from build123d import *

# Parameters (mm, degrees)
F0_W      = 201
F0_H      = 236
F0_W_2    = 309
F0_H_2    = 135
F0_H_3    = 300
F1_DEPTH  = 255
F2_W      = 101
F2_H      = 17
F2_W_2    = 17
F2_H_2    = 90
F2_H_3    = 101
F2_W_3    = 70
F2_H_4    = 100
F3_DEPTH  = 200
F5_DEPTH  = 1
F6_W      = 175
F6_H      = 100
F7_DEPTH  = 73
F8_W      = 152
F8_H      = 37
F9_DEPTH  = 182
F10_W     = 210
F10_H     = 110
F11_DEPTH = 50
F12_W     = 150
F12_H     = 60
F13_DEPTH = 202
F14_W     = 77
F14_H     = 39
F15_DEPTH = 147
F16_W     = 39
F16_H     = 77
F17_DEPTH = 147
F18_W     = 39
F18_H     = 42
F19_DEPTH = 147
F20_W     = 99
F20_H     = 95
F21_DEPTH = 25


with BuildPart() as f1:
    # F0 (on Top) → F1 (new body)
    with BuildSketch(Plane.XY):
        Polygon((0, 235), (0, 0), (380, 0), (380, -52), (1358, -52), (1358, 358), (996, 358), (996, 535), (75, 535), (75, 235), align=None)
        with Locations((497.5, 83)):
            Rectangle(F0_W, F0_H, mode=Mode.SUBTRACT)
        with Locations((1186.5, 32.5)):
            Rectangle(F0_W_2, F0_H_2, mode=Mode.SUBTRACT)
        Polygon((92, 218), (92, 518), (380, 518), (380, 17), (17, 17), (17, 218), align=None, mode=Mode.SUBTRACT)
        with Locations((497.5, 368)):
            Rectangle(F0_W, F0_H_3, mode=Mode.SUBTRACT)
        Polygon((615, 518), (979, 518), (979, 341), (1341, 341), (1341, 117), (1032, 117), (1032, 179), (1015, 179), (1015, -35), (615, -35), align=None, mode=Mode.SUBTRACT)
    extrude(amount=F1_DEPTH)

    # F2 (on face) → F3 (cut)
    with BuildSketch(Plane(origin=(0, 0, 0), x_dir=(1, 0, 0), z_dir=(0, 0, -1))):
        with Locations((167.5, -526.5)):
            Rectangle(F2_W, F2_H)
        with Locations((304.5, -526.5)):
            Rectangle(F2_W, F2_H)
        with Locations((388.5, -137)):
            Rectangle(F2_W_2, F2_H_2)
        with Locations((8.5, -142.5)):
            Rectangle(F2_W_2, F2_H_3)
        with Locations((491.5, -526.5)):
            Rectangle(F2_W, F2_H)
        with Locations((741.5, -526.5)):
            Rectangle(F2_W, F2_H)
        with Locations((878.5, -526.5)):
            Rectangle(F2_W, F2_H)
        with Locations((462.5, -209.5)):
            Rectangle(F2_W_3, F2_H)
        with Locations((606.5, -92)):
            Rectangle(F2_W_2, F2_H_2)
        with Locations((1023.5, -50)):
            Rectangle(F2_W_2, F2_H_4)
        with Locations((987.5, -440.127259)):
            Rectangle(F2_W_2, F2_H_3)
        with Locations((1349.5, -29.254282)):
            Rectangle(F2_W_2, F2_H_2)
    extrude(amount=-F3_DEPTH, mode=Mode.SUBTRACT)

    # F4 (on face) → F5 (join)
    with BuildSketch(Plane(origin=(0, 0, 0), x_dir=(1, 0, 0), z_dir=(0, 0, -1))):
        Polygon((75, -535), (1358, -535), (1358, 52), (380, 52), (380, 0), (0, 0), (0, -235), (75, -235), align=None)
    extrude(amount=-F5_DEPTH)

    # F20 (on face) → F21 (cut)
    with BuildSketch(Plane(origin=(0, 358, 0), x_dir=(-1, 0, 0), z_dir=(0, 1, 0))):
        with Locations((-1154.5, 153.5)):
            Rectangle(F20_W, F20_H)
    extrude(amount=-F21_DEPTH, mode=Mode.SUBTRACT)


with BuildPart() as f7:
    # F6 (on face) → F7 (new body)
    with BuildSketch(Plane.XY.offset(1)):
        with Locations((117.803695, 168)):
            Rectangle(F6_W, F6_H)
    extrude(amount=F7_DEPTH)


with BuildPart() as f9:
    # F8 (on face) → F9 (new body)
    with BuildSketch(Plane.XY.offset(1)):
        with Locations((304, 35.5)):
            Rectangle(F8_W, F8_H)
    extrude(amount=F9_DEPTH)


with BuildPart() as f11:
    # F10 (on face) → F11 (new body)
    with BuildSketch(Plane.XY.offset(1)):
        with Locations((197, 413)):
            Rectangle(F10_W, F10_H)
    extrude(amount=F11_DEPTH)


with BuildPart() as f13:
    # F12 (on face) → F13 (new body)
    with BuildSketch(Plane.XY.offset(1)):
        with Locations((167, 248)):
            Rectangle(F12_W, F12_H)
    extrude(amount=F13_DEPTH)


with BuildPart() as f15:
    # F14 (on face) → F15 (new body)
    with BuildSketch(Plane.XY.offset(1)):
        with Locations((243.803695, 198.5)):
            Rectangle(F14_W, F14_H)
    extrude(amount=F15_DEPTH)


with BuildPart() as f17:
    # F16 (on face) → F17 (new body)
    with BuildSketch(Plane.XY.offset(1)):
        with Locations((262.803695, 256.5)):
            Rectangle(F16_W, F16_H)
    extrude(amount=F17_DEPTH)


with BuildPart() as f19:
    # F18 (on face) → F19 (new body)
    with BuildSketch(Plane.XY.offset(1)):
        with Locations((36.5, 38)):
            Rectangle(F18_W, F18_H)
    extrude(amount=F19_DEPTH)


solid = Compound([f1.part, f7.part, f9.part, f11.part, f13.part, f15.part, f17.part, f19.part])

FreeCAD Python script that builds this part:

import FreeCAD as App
import Part
import Sketcher
from FreeCAD import Vector
Q = App.Units.Quantity


def add_polygon(sketch, points):
    """Adds a closed chain of lines whose ends are joined by coincident constraints."""
    first, n = sketch.GeometryCount, len(points)
    for a, b in zip(points, points[1:] + points[:1]):
        sketch.addGeometry(Part.LineSegment(App.Vector(*a, 0), App.Vector(*b, 0)), False)
    for i in range(n):
        sketch.addConstraint(Sketcher.Constraint("Coincident", first + i, 2, first + (i + 1) % n, 1))

doc = App.newDocument("Part")
params = doc.addObject("Spreadsheet::Sheet", "Params")
for row, (alias, value) in enumerate([
    ("sketch1_width", "380 mm"),
    ("sketch1_width2", "978 mm"),
    ("sketch1_width3", "362 mm"),
    ("sketch1_width4", "921 mm"),
    ("sketch1_width5", "201 mm"),
    ("pad1_length", "255 mm"),
    ("sketch2_width", "101 mm"),
    ("sketch2_width2", "17 mm"),
    ("sketch2_width3", "70 mm"),
    ("sketch2_height", "90 mm"),
    ("sketch2_height2", "100 mm"),
    ("pocket1_length", "200 mm"),
    ("sketch3_width", "1283 mm"),
    ("sketch3_width2", "978 mm"),
    ("sketch3_width3", "380 mm"),
    ("sketch3_height", "587 mm"),
    ("sketch3_height2", "52 mm"),
    ("pad2_length", "1 mm"),
    ("sketch4_width", "99 mm"),
    ("sketch4_height", "95 mm"),
    ("pocket2_length", "25 mm"),
    ("sketch5_width", "175 mm"),
    ("sketch5_height", "100 mm"),
    ("pad3_length", "73 mm"),
    ("sketch6_width", "152 mm"),
    ("sketch6_height", "37 mm"),
    ("pad4_length", "182 mm"),
    ("sketch7_width", "210 mm"),
    ("sketch7_height", "110 mm"),
    ("pad5_length", "50 mm"),
    ("sketch8_width", "150 mm"),
    ("sketch8_height", "60 mm"),
    ("pad6_length", "202 mm"),
    ("sketch9_width", "77 mm"),
    ("sketch9_height", "39 mm"),
    ("pad7_length", "147 mm"),
    ("sketch10_width", "39 mm"),
    ("sketch10_height", "77 mm"),
    ("pad8_length", "147 mm"),
    ("sketch11_width", "39 mm"),
    ("sketch11_height", "42 mm"),
    ("pad9_length", "147 mm"),
], start=1):
    params.set(f"A{row}", alias)
    params.set(f"B{row}", "=" + value)
    params.setAlias(f"B{row}", alias)

body = doc.addObject("PartDesign::Body", "Body")

# Sketch on XY plane
sketch1 = body.newObject("Sketcher::SketchObject", "Sketch")
sketch1.AttachmentSupport = (doc.getObject("XY_Plane"), [""])
sketch1.MapMode = "FlatFace"
add_polygon(sketch1, [(0, 235), (0, 0), (380, 0), (380, -52), (1358, -52), (1358, 358), (996, 358), (996, 535), (75, 535), (75, 235)])  # lines 0-9
add_polygon(sketch1, [(598, -35), (397, -35), (397, 201), (598, 201)])  # lines 10-13
add_polygon(sketch1, [(1341, -35), (1032, -35), (1032, 100), (1341, 100)])  # lines 14-17
add_polygon(sketch1, [(17, 218), (92, 218), (92, 518), (380, 518), (380, 17), (17, 17)])  # lines 18-23
add_polygon(sketch1, [(598, 218), (397, 218), (397, 518), (598, 518)])  # lines 24-27
add_polygon(sketch1, [(615, -35), (615, 518), (979, 518), (979, 341), (1341, 341), (1341, 117), (1032, 117), (1032, 179), (1015, 179), (1015, -35)])  # lines 28-37
sketch1.addConstraint([
    Sketcher.Constraint("Vertical", 0),
    Sketcher.Constraint("Horizontal", 1),
    Sketcher.Constraint("Vertical", 2),
    Sketcher.Constraint("Horizontal", 3),
    Sketcher.Constraint("Vertical", 4),
    Sketcher.Constraint("Horizontal", 5),
    Sketcher.Constraint("Vertical", 6),
    Sketcher.Constraint("Horizontal", 7),
    Sketcher.Constraint("Vertical", 8),
    Sketcher.Constraint("Horizontal", 9),
    Sketcher.Constraint("Horizontal", 10),
    Sketcher.Constraint("Vertical", 11),
    Sketcher.Constraint("Horizontal", 12),
    Sketcher.Constraint("Vertical", 13),
    Sketcher.Constraint("Horizontal", 14),
    Sketcher.Constraint("Vertical", 15),
    Sketcher.Constraint("Horizontal", 16),
    Sketcher.Constraint("Vertical", 17),
    Sketcher.Constraint("Horizontal", 18),
    Sketcher.Constraint("Vertical", 19),
    Sketcher.Constraint("Horizontal", 20),
    Sketcher.Constraint("Vertical", 21),
    Sketcher.Constraint("Horizontal", 22),
    Sketcher.Constraint("Vertical", 23),
    Sketcher.Constraint("Horizontal", 24),
    Sketcher.Constraint("Vertical", 25),
    Sketcher.Constraint("Horizontal", 26),
    Sketcher.Constraint("Vertical", 27),
    Sketcher.Constraint("Vertical", 28),
    Sketcher.Constraint("Horizontal", 29),
    Sketcher.Constraint("Vertical", 30),
    Sketcher.Constraint("Horizontal", 31),
    Sketcher.Constraint("Vertical", 32),
    Sketcher.Constraint("Horizontal", 33),
    Sketcher.Constraint("Vertical", 34),
    Sketcher.Constraint("Horizontal", 35),
    Sketcher.Constraint("Vertical", 36),
    Sketcher.Constraint("Horizontal", 37),
    Sketcher.Constraint("Coincident", 0, 2, -1, 1),
    Sketcher.Constraint("Horizontal", 13, 2, 14, 2),
    Sketcher.Constraint("Horizontal", 23, 2, 24, 2),
    Sketcher.Constraint("Horizontal", 20, 2, 25, 2),
    Sketcher.Constraint("Horizontal", 26, 2, 28, 2),
    Sketcher.Constraint("Horizontal", 17, 2, 36, 2),
    Sketcher.Constraint("Vertical", 2, 2, 20, 2),
    Sketcher.Constraint("Vertical", 11, 2, 24, 2),
    Sketcher.Constraint("Vertical", 13, 2, 26, 2),
    Sketcher.Constraint("Vertical", 17, 2, 31, 2),
    Sketcher.Constraint("Vertical", 15, 2, 33, 2),
    Sketcher.Constraint("Equal", 9, 18),
    Sketcher.Constraint("Equal", 5, 31),
    Sketcher.Constraint("Equal", 8, 19),
    Sketcher.Constraint("Equal", 26, 23),
    Sketcher.Constraint("Equal", 6, 30),
    Sketcher.Constraint("DistanceX", 1, 1, 1, 2, Q("380 mm")),
    Sketcher.Constraint("DistanceX", 3, 1, 3, 2, Q("978 mm")),
    Sketcher.Constraint("DistanceX", 5, 2, 5, 1, Q("362 mm")),
    Sketcher.Constraint("DistanceX", 7, 2, 7, 1, Q("921 mm")),
    Sketcher.Constraint("DistanceX", 10, 2, 10, 1, Q("201 mm")),
    Sketcher.Constraint("DistanceX", 14, 2, 14, 1, Q("309 mm")),
    Sketcher.Constraint("DistanceX", 20, 1, 20, 2, Q("288 mm")),
    Sketcher.Constraint("DistanceX", 29, 1, 29, 2, Q("364 mm")),
    Sketcher.Constraint("DistanceX", 35, 2, 35, 1, Q("17 mm")),
    Sketcher.Constraint("DistanceY", 0, 2, 0, 1, Q("235 mm")),
    Sketcher.Constraint("DistanceY", 2, 2, 2, 1, Q("52 mm")),
    Sketcher.Constraint("DistanceY", 4, 1, 4, 2, Q("410 mm")),
    Sketcher.Constraint("DistanceY", 6, 1, 6, 2, Q("177 mm")),
    Sketcher.Constraint("DistanceY", 11, 1, 11, 2, Q("236 mm")),
    Sketcher.Constraint("DistanceY", 15, 1, 15, 2, Q("135 mm")),
    Sketcher.Constraint("DistanceY", 28, 1, 28, 2, Q("553 mm")),
    Sketcher.Constraint("DistanceY", 32, 2, 32, 1, Q("224 mm")),
    Sketcher.Constraint("DistanceY", 34, 1, 34, 2, Q("62 mm")),
    Sketcher.Constraint("DistanceX", -1, 1, 10, 2, Q("397 mm")),
    Sketcher.Constraint("DistanceY", 10, 2, -1, 1, Q("35 mm")),
    Sketcher.Constraint("DistanceX", -1, 1, 14, 2, Q("1032 mm")),
])
sketch1.setExpression("Constraints[92]", "Params.sketch1_width")
sketch1.setExpression("Constraints[93]", "Params.sketch1_width2")
sketch1.setExpression("Constraints[94]", "Params.sketch1_width3")
sketch1.setExpression("Constraints[95]", "Params.sketch1_width4")
sketch1.setExpression("Constraints[96]", "Params.sketch1_width5")
pad1 = body.newObject("PartDesign::Pad", "Pad")
pad1.Profile = sketch1
pad1.setExpression("Length", "Params.pad1_length")

# Sketch on XY plane
sketch2 = body.newObject("Sketcher::SketchObject", "Sketch001")
sketch2.AttachmentSupport = (doc.getObject("XY_Plane"), [""])
sketch2.MapMode = "FlatFace"
add_polygon(sketch2, [(117, 518), (117, 535), (218, 535), (218, 518)])  # lines 0-3
add_polygon(sketch2, [(254, 518), (254, 535), (355, 535), (355, 518)])  # lines 4-7
add_polygon(sketch2, [(380, 92), (380, 182), (397, 182), (397, 92)])  # lines 8-11
add_polygon(sketch2, [(0, 92), (0, 193), (17, 193), (17, 92)])  # lines 12-15
add_polygon(sketch2, [(441, 518), (441, 535), (542, 535), (542, 518)])  # lines 16-19
add_polygon(sketch2, [(691, 518), (691, 535), (792, 535), (792, 518)])  # lines 20-23
add_polygon(sketch2, [(828, 518), (828, 535), (929, 535), (929, 518)])  # lines 24-27
add_polygon(sketch2, [(428, 201), (428, 218), (498, 218), (498, 201)])  # lines 28-31
add_polygon(sketch2, [(598, 47), (598, 137), (615, 137), (615, 47)])  # lines 32-35
add_polygon(sketch2, [(1015, 0), (1015, 100), (1032, 100), (1032, 0)])  # lines 36-39
add_polygon(sketch2, [(979, 390), (979, 491), (996, 491), (996, 390)])  # lines 40-43
add_polygon(sketch2, [(1341, -16), (1341, 74), (1358, 74), (1358, -16)])  # lines 44-47
sketch2.addConstraint([
    Sketcher.Constraint("Vertical", 0),
    Sketcher.Constraint("Horizontal", 1),
    Sketcher.Constraint("Vertical", 2),
    Sketcher.Constraint("Horizontal", 3),
    Sketcher.Constraint("Vertical", 4),
    Sketcher.Constraint("Horizontal", 5),
    Sketcher.Constraint("Vertical", 6),
    Sketcher.Constraint("Horizontal", 7),
    Sketcher.Constraint("Vertical", 8),
    Sketcher.Constraint("Horizontal", 9),
    Sketcher.Constraint("Vertical", 10),
    Sketcher.Constraint("Horizontal", 11),
    Sketcher.Constraint("Vertical", 12),
    Sketcher.Constraint("Horizontal", 13),
    Sketcher.Constraint("Vertical", 14),
    Sketcher.Constraint("Horizontal", 15),
    Sketcher.Constraint("Vertical", 16),
    Sketcher.Constraint("Horizontal", 17),
    Sketcher.Constraint("Vertical", 18),
    Sketcher.Constraint("Horizontal", 19),
    Sketcher.Constraint("Vertical", 20),
    Sketcher.Constraint("Horizontal", 21),
    Sketcher.Constraint("Vertical", 22),
    Sketcher.Constraint("Horizontal", 23),
    Sketcher.Constraint("Vertical", 24),
    Sketcher.Constraint("Horizontal", 25),
    Sketcher.Constraint("Vertical", 26),
    Sketcher.Constraint("Horizontal", 27),
    Sketcher.Constraint("Vertical", 28),
    Sketcher.Constraint("Horizontal", 29),
    Sketcher.Constraint("Vertical", 30),
    Sketcher.Constraint("Horizontal", 31),
    Sketcher.Constraint("Vertical", 32),
    Sketcher.Constraint("Horizontal", 33),
    Sketcher.Constraint("Vertical", 34),
    Sketcher.Constraint("Horizontal", 35),
    Sketcher.Constraint("Vertical", 36),
    Sketcher.Constraint("Horizontal", 37),
    Sketcher.Constraint("Vertical", 38),
    Sketcher.Constraint("Horizontal", 39),
    Sketcher.Constraint("Vertical", 40),
    Sketcher.Constraint("Horizontal", 41),
    Sketcher.Constraint("Vertical", 42),
    Sketcher.Constraint("Horizontal", 43),
    Sketcher.Constraint("Vertical", 44),
    Sketcher.Constraint("Horizontal", 45),
    Sketcher.Constraint("Vertical", 46),
    Sketcher.Constraint("Horizontal", 47),
    Sketcher.Constraint("PointOnObject", 12, 2, -2),
    Sketcher.Constraint("PointOnObject", 38, 2, -1),
    Sketcher.Constraint("Horizontal", 1, 2, 4, 2),
    Sketcher.Constraint("Horizontal", 3, 2, 6, 2),
    Sketcher.Constraint("Horizontal", 11, 2, 14, 2),
    Sketcher.Constraint("Horizontal", 5, 2, 16, 2),
    Sketcher.Constraint("Horizontal", 7, 2, 18, 2),
    Sketcher.Constraint("Horizontal", 17, 2, 20, 2),
    Sketcher.Constraint("Horizontal", 19, 2, 22, 2),
    Sketcher.Constraint("Horizontal", 21, 2, 24, 2),
    Sketcher.Constraint("Horizontal", 23, 2, 26, 2),
    Sketcher.Constraint("Equal", 3, 5),
    Sketcher.Constraint("Equal", 11, 13),
    Sketcher.Constraint("Equal", 7, 17),
    Sketcher.Constraint("Equal", 19, 21),
    Sketcher.Constraint("Equal", 23, 25),
    Sketcher.Constraint("Equal", 15, 33),
    Sketcher.Constraint("Equal", 35, 37),
    Sketcher.Constraint("Equal", 39, 41),
    Sketcher.Constraint("Equal", 43, 45),
    Sketcher.Constraint("Equal", 47, 0),
    Sketcher.Constraint("Equal", 27, 12),
    Sketcher.Constraint("Equal", 26, 28),
    Sketcher.Constraint("Equal", 10, 32),
    Sketcher.Constraint("Equal", 14, 40),
    Sketcher.Constraint("Equal", 34, 44),
    Sketcher.Constraint("DistanceX", 1, 1, 1, 2, Q("101 mm")),
    Sketcher.Constraint("DistanceX", 9, 1, 9, 2, Q("17 mm")),
    Sketcher.Constraint("DistanceX", 29, 1, 29, 2, Q("70 mm")),
    Sketcher.Constraint("DistanceY", 8, 1, 8, 2, Q("90 mm")),
    Sketcher.Constraint("DistanceY", 36, 1, 36, 2, Q("100 mm")),
    Sketcher.Constraint("DistanceX", -1, 1, 0, 2, Q("117 mm")),
    Sketcher.Constraint("DistanceY", -1, 1, 0, 2, Q("535 mm")),
    Sketcher.Constraint("DistanceX", -1, 1, 4, 2, Q("254 mm")),
    Sketcher.Constraint("DistanceX", -1, 1, 8, 2, Q("380 mm")),
    Sketcher.Constraint("DistanceY", -1, 1, 8, 2, Q("182 mm")),
    Sketcher.Constraint("DistanceX", -1, 1, 16, 2, Q("441 mm")),
    Sketcher.Constraint("DistanceX", -1, 1, 20, 2, Q("691 mm")),
    Sketcher.Constraint("DistanceX", -1, 1, 24, 2, Q("828 mm")),
    Sketcher.Constraint("DistanceY", -1, 1, 28, 2, Q("218 mm")),
    Sketcher.Constraint("DistanceX", -1, 1, 32, 2, Q("598 mm")),
    Sketcher.Constraint("DistanceY", -1, 1, 32, 2, Q("137 mm")),
    Sketcher.Constraint("DistanceX", -1, 1, 36, 2, Q("1015 mm")),
    Sketcher.Constraint("DistanceX", -1, 1, 40, 2, Q("979 mm")),
    Sketcher.Constraint("DistanceX", -1, 1, 44, 2, Q("1341 mm")),
    Sketcher.Constraint("DistanceX", -1, 1, 28, 2, Q("427.5 mm")),
    Sketcher.Constraint("DistanceY", -1, 1, 40, 2, Q("490.627259 mm")),
    Sketcher.Constraint("DistanceY", -1, 1, 44, 2, Q("74.254282 mm")),
])
sketch2.setExpression("Constraints[122]", "Params.sketch2_width")
sketch2.setExpression("Constraints[123]", "Params.sketch2_width2")
sketch2.setExpression("Constraints[124]", "Params.sketch2_width3")
sketch2.setExpression("Constraints[125]", "Params.sketch2_height")
sketch2.setExpression("Constraints[126]", "Params.sketch2_height2")
pocket1 = body.newObject("PartDesign::Pocket", "Pocket")
pocket1.Profile = sketch2
pocket1.setExpression("Length", "Params.pocket1_length")
pocket1.Reversed = True

# Sketch on XY plane
sketch3 = body.newObject("Sketcher::SketchObject", "Sketch002")
sketch3.AttachmentSupport = (doc.getObject("XY_Plane"), [""])
sketch3.MapMode = "FlatFace"
add_polygon(sketch3, [(75, 535), (1358, 535), (1358, -52), (380, -52), (380, 0), (0, 0), (0, 235), (75, 235)])  # lines 0-7
sketch3.addConstraint([
    Sketcher.Constraint("Horizontal", 0),
    Sketcher.Constraint("Vertical", 1),
    Sketcher.Constraint("Horizontal", 2),
    Sketcher.Constraint("Vertical", 3),
    Sketcher.Constraint("Horizontal", 4),
    Sketcher.Constraint("Vertical", 5),
    Sketcher.Constraint("Horizontal", 6),
    Sketcher.Constraint("Vertical", 7),
    Sketcher.Constraint("Coincident", 4, 2, -1, 1),
    Sketcher.Constraint("DistanceX", 0, 1, 0, 2, Q("1283 mm")),
    Sketcher.Constraint("DistanceX", 2, 2, 2, 1, Q("978 mm")),
    Sketcher.Constraint("DistanceX", 4, 2, 4, 1, Q("380 mm")),
    Sketcher.Constraint("DistanceY", 1, 2, 1, 1, Q("587 mm")),
    Sketcher.Constraint("DistanceY", 3, 1, 3, 2, Q("52 mm")),
    Sketcher.Constraint("DistanceY", 5, 1, 5, 2, Q("235 mm")),
])
sketch3.setExpression("Constraints[17]", "Params.sketch3_width")
sketch3.setExpression("Constraints[18]", "Params.sketch3_width2")
sketch3.setExpression("Constraints[19]", "Params.sketch3_width3")
sketch3.setExpression("Constraints[20]", "Params.sketch3_height")
sketch3.setExpression("Constraints[21]", "Params.sketch3_height2")
pad2 = body.newObject("PartDesign::Pad", "Pad001")
pad2.Profile = sketch3
pad2.setExpression("Length", "Params.pad2_length")

# Sketch on XZ plane
sketch4 = body.newObject("Sketcher::SketchObject", "Sketch003")
sketch4.AttachmentSupport = (doc.getObject("XZ_Plane"), [""])
sketch4.MapMode = "FlatFace"
sketch4.AttachmentOffset = App.Placement(Vector(0, 0, -358), App.Rotation())
add_polygon(sketch4, [(1204, 201), (1204, 106), (1105, 106), (1105, 201)])  # lines 0-3
sketch4.addConstraint([
    Sketcher.Constraint("Vertical", 0),
    Sketcher.Constraint("Horizontal", 1),
    Sketcher.Constraint("Vertical", 2),
    Sketcher.Constraint("Horizontal", 3),
    Sketcher.Constraint("DistanceX", 1, 2, 1, 1, Q("99 mm")),
    Sketcher.Constraint("DistanceY", 0, 2, 0, 1, Q("95 mm")),
    Sketcher.Constraint("DistanceX", -1, 1, 0, 2, Q("1204 mm")),
    Sketcher.Constraint("DistanceY", -1, 1, 0, 2, Q("106 mm")),
])
sketch4.setExpression("Constraints[8]", "Params.sketch4_width")
sketch4.setExpression("Constraints[9]", "Params.sketch4_height")
pocket2 = body.newObject("PartDesign::Pocket", "Pocket001")
pocket2.Profile = sketch4
pocket2.setExpression("Length", "Params.pocket2_length")
pocket2.Reversed = True
body2 = doc.addObject("PartDesign::Body", "Body001")

# Sketch on XY plane
sketch5 = body2.newObject("Sketcher::SketchObject", "Sketch004")
sketch5.AttachmentSupport = (doc.getObject("XY_Plane001"), [""])
sketch5.MapMode = "FlatFace"
sketch5.AttachmentOffset = App.Placement(Vector(0, 0, 1), App.Rotation())
add_polygon(sketch5, [(30, 218), (30, 118), (205, 118), (205, 218)])  # lines 0-3
sketch5.addConstraint([
    Sketcher.Constraint("Vertical", 0),
    Sketcher.Constraint("Horizontal", 1),
    Sketcher.Constraint("Vertical", 2),
    Sketcher.Constraint("Horizontal", 3),
    Sketcher.Constraint("DistanceX", 1, 1, 1, 2, Q("175 mm")),
    Sketcher.Constraint("DistanceY", 0, 2, 0, 1, Q("100 mm")),
    Sketcher.Constraint("DistanceY", -1, 1, 0, 2, Q("118 mm")),
    Sketcher.Constraint("DistanceX", -1, 1, 0, 2, Q("30.303695 mm")),
])
sketch5.setExpression("Constraints[8]", "Params.sketch5_width")
sketch5.setExpression("Constraints[9]", "Params.sketch5_height")
pad3 = body2.newObject("PartDesign::Pad", "Pad002")
pad3.Profile = sketch5
pad3.setExpression("Length", "Params.pad3_length")
body3 = doc.addObject("PartDesign::Body", "Body002")

# Sketch on XY plane
sketch6 = body3.newObject("Sketcher::SketchObject", "Sketch005")
sketch6.AttachmentSupport = (doc.getObject("XY_Plane002"), [""])
sketch6.MapMode = "FlatFace"
sketch6.AttachmentOffset = App.Placement(Vector(0, 0, 1), App.Rotation())
add_polygon(sketch6, [(228, 54), (228, 17), (380, 17), (380, 54)])  # lines 0-3
sketch6.addConstraint([
    Sketcher.Constraint("Vertical", 0),
    Sketcher.Constraint("Horizontal", 1),
    Sketcher.Constraint("Vertical", 2),
    Sketcher.Constraint("Horizontal", 3),
    Sketcher.Constraint("DistanceX", 1, 1, 1, 2, Q("152 mm")),
    Sketcher.Constraint("DistanceY", 0, 2, 0, 1, Q("37 mm")),
    Sketcher.Constraint("DistanceX", -1, 1, 0, 2, Q("228 mm")),
    Sketcher.Constraint("DistanceY", -1, 1, 0, 2, Q("17 mm")),
])
sketch6.setExpression("Constraints[8]", "Params.sketch6_width")
sketch6.setExpression("Constraints[9]", "Params.sketch6_height")
pad4 = body3.newObject("PartDesign::Pad", "Pad003")
pad4.Profile = sketch6
pad4.setExpression("Length", "Params.pad4_length")
body4 = doc.addObject("PartDesign::Body", "Body003")

# Sketch on XY plane
sketch7 = body4.newObject("Sketcher::SketchObject", "Sketch006")
sketch7.AttachmentSupport = (doc.getObject("XY_Plane003"), [""])
sketch7.MapMode = "FlatFace"
sketch7.AttachmentOffset = App.Placement(Vector(0, 0, 1), App.Rotation())
add_polygon(sketch7, [(92, 468), (92, 358), (302, 358), (302, 468)])  # lines 0-3
sketch7.addConstraint([
    Sketcher.Constraint("Vertical", 0),
    Sketcher.Constraint("Horizontal", 1),
    Sketcher.Constraint("Vertical", 2),
    Sketcher.Constraint("Horizontal", 3),
    Sketcher.Constraint("DistanceX", 1, 1, 1, 2, Q("210 mm")),
    Sketcher.Constraint("DistanceY", 0, 2, 0, 1, Q("110 mm")),
    Sketcher.Constraint("DistanceX", -1, 1, 0, 2, Q("92 mm")),
    Sketcher.Constraint("DistanceY", -1, 1, 0, 2, Q("358 mm")),
])
sketch7.setExpression("Constraints[8]", "Params.sketch7_width")
sketch7.setExpression("Constraints[9]", "Params.sketch7_height")
pad5 = body4.newObject("PartDesign::Pad", "Pad004")
pad5.Profile = sketch7
pad5.setExpression("Length", "Params.pad5_length")
body5 = doc.addObject("PartDesign::Body", "Body004")

# Sketch on XY plane
sketch8 = body5.newObject("Sketcher::SketchObject", "Sketch007")
sketch8.AttachmentSupport = (doc.getObject("XY_Plane004"), [""])
sketch8.MapMode = "FlatFace"
sketch8.AttachmentOffset = App.Placement(Vector(0, 0, 1), App.Rotation())
add_polygon(sketch8, [(92, 278), (92, 218), (242, 218), (242, 278)])  # lines 0-3
sketch8.addConstraint([
    Sketcher.Constraint("Vertical", 0),
    Sketcher.Constraint("Horizontal", 1),
    Sketcher.Constraint("Vertical", 2),
    Sketcher.Constraint("Horizontal", 3),
    Sketcher.Constraint("DistanceX", 1, 1, 1, 2, Q("150 mm")),
    Sketcher.Constraint("DistanceY", 0, 2, 0, 1, Q("60 mm")),
    Sketcher.Constraint("DistanceX", -1, 1, 0, 2, Q("92 mm")),
    Sketcher.Constraint("DistanceY", -1, 1, 0, 2, Q("218 mm")),
])
sketch8.setExpression("Constraints[8]", "Params.sketch8_width")
sketch8.setExpression("Constraints[9]", "Params.sketch8_height")
pad6 = body5.newObject("PartDesign::Pad", "Pad005")
pad6.Profile = sketch8
pad6.setExpression("Length", "Params.pad6_length")
body6 = doc.addObject("PartDesign::Body", "Body005")

# Sketch on XY plane
sketch9 = body6.newObject("Sketcher::SketchObject", "Sketch008")
sketch9.AttachmentSupport = (doc.getObject("XY_Plane005"), [""])
sketch9.MapMode = "FlatFace"
sketch9.AttachmentOffset = App.Placement(Vector(0, 0, 1), App.Rotation())
add_polygon(sketch9, [(205, 218), (205, 179), (282, 179), (282, 218)])  # lines 0-3
sketch9.addConstraint([
    Sketcher.Constraint("Vertical", 0),
    Sketcher.Constraint("Horizontal", 1),
    Sketcher.Constraint("Vertical", 2),
    Sketcher.Constraint("Horizontal", 3),
    Sketcher.Constraint("DistanceX", 1, 1, 1, 2, Q("77 mm")),
    Sketcher.Constraint("DistanceY", 0, 2, 0, 1, Q("39 mm")),
    Sketcher.Constraint("DistanceY", -1, 1, 0, 2, Q("179 mm")),
    Sketcher.Constraint("DistanceX", -1, 1, 0, 2, Q("205.303695 mm")),
])
sketch9.setExpression("Constraints[8]", "Params.sketch9_width")
sketch9.setExpression("Constraints[9]", "Params.sketch9_height")
pad7 = body6.newObject("PartDesign::Pad", "Pad006")
pad7.Profile = sketch9
pad7.setExpression("Length", "Params.pad7_length")
body7 = doc.addObject("PartDesign::Body", "Body006")

# Sketch on XY plane
sketch10 = body7.newObject("Sketcher::SketchObject", "Sketch009")
sketch10.AttachmentSupport = (doc.getObject("XY_Plane006"), [""])
sketch10.MapMode = "FlatFace"
sketch10.AttachmentOffset = App.Placement(Vector(0, 0, 1), App.Rotation())
add_polygon(sketch10, [(243, 295), (243, 218), (282, 218), (282, 295)])  # lines 0-3
sketch10.addConstraint([
    Sketcher.Constraint("Vertical", 0),
    Sketcher.Constraint("Horizontal", 1),
    Sketcher.Constraint("Vertical", 2),
    Sketcher.Constraint("Horizontal", 3),
    Sketcher.Constraint("DistanceX", 1, 1, 1, 2, Q("39 mm")),
    Sketcher.Constraint("DistanceY", 0, 2, 0, 1, Q("77 mm")),
    Sketcher.Constraint("DistanceY", -1, 1, 0, 2, Q("218 mm")),
    Sketcher.Constraint("DistanceX", -1, 1, 0, 2, Q("243.303695 mm")),
])
sketch10.setExpression("Constraints[8]", "Params.sketch10_width")
sketch10.setExpression("Constraints[9]", "Params.sketch10_height")
pad8 = body7.newObject("PartDesign::Pad", "Pad007")
pad8.Profile = sketch10
pad8.setExpression("Length", "Params.pad8_length")
body8 = doc.addObject("PartDesign::Body", "Body007")

# Sketch on XY plane
sketch11 = body8.newObject("Sketcher::SketchObject", "Sketch010")
sketch11.AttachmentSupport = (doc.getObject("XY_Plane007"), [""])
sketch11.MapMode = "FlatFace"
sketch11.AttachmentOffset = App.Placement(Vector(0, 0, 1), App.Rotation())
add_polygon(sketch11, [(17, 59), (17, 17), (56, 17), (56, 59)])  # lines 0-3
sketch11.addConstraint([
    Sketcher.Constraint("Vertical", 0),
    Sketcher.Constraint("Horizontal", 1),
    Sketcher.Constraint("Vertical", 2),
    Sketcher.Constraint("Horizontal", 3),
    Sketcher.Constraint("DistanceX", 1, 1, 1, 2, Q("39 mm")),
    Sketcher.Constraint("DistanceY", 0, 2, 0, 1, Q("42 mm")),
    Sketcher.Constraint("DistanceX", -1, 1, 0, 2, Q("17 mm")),
    Sketcher.Constraint("DistanceY", -1, 1, 0, 2, Q("17 mm")),
])
sketch11.setExpression("Constraints[8]", "Params.sketch11_width")
sketch11.setExpression("Constraints[9]", "Params.sketch11_height")
pad9 = body8.newObject("PartDesign::Pad", "Pad008")
pad9.Profile = sketch11
pad9.setExpression("Length", "Params.pad9_length")

doc.recompute()
